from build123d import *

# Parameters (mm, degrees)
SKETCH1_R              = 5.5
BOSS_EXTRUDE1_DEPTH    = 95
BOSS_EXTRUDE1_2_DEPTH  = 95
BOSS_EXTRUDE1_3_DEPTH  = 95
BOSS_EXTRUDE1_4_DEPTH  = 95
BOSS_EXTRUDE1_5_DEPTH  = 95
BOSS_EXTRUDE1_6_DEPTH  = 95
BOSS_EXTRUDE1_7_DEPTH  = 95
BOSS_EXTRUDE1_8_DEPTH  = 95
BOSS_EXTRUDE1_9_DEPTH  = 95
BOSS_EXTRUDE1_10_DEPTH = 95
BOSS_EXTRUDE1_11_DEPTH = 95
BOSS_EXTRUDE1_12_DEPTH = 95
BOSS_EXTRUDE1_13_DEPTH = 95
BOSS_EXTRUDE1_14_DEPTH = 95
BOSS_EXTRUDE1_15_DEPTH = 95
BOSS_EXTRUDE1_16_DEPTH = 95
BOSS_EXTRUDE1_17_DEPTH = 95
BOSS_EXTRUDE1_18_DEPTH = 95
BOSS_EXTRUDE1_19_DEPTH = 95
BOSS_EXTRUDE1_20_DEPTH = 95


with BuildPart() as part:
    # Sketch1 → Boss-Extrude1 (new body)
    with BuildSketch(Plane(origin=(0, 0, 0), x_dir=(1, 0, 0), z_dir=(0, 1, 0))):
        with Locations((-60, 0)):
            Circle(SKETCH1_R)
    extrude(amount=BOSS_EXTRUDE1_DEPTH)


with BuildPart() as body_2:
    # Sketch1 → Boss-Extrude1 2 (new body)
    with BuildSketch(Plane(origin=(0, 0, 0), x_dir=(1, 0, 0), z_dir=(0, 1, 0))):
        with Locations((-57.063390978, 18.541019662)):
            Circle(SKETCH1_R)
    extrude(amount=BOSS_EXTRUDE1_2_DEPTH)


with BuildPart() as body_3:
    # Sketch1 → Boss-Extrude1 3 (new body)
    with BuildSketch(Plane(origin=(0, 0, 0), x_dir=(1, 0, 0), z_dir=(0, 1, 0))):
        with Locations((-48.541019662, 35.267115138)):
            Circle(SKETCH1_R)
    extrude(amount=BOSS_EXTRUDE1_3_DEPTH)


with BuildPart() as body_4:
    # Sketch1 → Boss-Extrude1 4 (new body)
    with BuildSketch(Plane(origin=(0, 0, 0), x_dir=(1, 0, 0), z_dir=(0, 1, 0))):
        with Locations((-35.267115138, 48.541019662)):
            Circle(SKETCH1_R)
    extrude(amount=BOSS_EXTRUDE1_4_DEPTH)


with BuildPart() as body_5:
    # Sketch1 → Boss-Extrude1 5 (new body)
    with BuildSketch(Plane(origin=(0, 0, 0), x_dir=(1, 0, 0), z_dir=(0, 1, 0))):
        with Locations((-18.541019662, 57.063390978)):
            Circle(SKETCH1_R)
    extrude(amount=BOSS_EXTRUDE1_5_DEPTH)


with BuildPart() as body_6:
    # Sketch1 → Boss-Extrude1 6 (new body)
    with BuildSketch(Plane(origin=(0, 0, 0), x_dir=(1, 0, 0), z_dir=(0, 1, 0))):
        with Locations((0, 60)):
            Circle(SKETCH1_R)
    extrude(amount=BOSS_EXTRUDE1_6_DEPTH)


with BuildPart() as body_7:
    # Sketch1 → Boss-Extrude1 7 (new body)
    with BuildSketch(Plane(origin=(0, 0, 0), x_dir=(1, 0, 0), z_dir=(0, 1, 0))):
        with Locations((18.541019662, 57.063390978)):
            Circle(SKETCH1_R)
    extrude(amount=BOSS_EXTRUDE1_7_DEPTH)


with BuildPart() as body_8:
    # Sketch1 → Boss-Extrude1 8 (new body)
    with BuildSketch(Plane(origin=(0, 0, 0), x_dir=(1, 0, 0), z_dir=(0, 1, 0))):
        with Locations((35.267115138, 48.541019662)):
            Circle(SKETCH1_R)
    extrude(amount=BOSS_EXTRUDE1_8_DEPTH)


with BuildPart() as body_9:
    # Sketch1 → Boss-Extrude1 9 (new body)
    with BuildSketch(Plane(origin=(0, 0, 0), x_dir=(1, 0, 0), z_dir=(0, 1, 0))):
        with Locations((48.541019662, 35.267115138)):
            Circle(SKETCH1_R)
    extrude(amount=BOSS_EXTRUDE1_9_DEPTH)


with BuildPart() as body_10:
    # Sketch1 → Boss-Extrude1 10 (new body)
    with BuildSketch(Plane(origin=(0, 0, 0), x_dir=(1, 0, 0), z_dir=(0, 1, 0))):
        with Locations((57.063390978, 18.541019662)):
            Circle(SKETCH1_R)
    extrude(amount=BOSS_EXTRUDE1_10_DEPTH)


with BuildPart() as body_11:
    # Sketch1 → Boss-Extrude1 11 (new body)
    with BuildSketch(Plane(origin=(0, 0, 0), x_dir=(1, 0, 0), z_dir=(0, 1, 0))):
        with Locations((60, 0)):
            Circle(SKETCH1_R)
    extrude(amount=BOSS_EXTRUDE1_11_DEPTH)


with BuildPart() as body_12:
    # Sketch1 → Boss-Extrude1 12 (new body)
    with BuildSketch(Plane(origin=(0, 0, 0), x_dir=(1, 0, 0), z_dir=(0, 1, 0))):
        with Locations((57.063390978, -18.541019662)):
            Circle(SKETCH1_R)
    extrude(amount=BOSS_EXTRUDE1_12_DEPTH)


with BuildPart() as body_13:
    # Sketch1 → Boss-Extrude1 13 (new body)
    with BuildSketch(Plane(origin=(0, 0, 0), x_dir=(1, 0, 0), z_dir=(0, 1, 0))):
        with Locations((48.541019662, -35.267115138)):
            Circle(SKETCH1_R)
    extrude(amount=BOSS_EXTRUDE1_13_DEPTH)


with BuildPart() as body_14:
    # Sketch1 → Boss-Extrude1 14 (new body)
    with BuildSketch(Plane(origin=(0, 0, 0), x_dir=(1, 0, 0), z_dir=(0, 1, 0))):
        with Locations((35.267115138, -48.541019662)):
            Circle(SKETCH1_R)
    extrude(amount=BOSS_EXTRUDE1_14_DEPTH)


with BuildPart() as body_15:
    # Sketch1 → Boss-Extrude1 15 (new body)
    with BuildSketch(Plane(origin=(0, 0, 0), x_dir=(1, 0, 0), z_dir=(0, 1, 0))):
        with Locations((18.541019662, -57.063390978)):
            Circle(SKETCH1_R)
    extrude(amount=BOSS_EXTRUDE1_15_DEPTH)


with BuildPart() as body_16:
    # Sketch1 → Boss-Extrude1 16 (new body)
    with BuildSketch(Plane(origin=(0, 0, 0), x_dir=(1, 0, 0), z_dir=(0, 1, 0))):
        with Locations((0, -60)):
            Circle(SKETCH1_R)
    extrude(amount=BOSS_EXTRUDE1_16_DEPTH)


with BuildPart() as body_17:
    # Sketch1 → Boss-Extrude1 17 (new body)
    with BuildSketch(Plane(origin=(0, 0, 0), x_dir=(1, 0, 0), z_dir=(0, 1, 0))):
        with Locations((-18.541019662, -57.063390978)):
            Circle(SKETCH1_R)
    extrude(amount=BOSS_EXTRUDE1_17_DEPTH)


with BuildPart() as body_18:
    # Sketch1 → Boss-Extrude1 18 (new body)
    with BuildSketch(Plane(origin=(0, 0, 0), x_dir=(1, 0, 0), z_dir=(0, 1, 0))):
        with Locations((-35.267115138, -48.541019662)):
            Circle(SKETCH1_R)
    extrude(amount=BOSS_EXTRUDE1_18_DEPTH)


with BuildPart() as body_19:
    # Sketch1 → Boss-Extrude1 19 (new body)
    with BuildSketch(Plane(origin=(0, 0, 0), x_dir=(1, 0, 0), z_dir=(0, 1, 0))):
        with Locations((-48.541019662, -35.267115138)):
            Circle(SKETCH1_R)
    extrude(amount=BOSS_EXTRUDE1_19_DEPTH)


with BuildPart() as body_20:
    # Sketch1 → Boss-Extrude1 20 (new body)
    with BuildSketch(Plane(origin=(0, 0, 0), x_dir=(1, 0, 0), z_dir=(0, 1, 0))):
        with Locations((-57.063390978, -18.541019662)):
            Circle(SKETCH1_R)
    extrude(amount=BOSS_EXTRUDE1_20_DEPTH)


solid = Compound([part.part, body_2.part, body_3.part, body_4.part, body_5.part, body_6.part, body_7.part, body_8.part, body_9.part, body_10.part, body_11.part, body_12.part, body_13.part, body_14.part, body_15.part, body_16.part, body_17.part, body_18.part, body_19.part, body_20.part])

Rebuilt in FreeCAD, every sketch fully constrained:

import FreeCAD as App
import Part
import Sketcher
from FreeCAD import Vector

doc = App.newDocument("Part")
body = doc.addObject("PartDesign::Body", "Body")

# Sketch on XZ plane
sketch1 = body.newObject("Sketcher::SketchObject", "Sketch")
sketch1.AttachmentSupport = (doc.getObject("XZ_Plane"), [""])
sketch1.MapMode = "FlatFace"
sketch1.addGeometry(Part.Circle(Vector(-60, 0, 0), Vector(0, 0, 1), 6), False)
sketch1.addConstraint(Sketcher.Constraint("PointOnObject", 0, 3, -1))
sketch1.addConstraint(Sketcher.Constraint("Diameter", 0, 11.0))
sketch1.addConstraint(Sketcher.Constraint("DistanceX", 0, 3, -1, 1, 60.0))
pad1 = body.newObject("PartDesign::Pad", "Pad")
pad1.Profile = sketch1
pad1.Length = 95
pad1.Reversed = True
body2 = doc.addObject("PartDesign::Body", "Body001")

# Sketch on XZ plane
sketch2 = body2.newObject("Sketcher::SketchObject", "Sketch001")
sketch2.AttachmentSupport = (doc.getObject("XZ_Plane001"), [""])
sketch2.MapMode = "FlatFace"
sketch2.addGeometry(Part.Circle(Vector(-57, -19, 0), Vector(0, 0, 1), 6), False)
sketch2.addConstraint(Sketcher.Constraint("Diameter", 0, 11.0))
sketch2.addConstraint(Sketcher.Constraint("DistanceX", 0, 3, -1, 1, 57.063391))
sketch2.addConstraint(Sketcher.Constraint("DistanceY", 0, 3, -1, 1, 18.54102))
pad2 = body2.newObject("PartDesign::Pad", "Pad001")
pad2.Profile = sketch2
pad2.Length = 95
pad2.Reversed = True
body3 = doc.addObject("PartDesign::Body", "Body002")

# Sketch on XZ plane
sketch3 = body3.newObject("Sketcher::SketchObject", "Sketch002")
sketch3.AttachmentSupport = (doc.getObject("XZ_Plane002"), [""])
sketch3.MapMode = "FlatFace"
sketch3.addGeometry(Part.Circle(Vector(-49, -35, 0), Vector(0, 0, 1), 6), False)
sketch3.addConstraint(Sketcher.Constraint("Diameter", 0, 11.0))
sketch3.addConstraint(Sketcher.Constraint("DistanceX", 0, 3, -1, 1, 48.54102))
sketch3.addConstraint(Sketcher.Constraint("DistanceY", 0, 3, -1, 1, 35.267115))
pad3 = body3.newObject("PartDesign::Pad", "Pad002")
pad3.Profile = sketch3
pad3.Length = 95
pad3.Reversed = True
body4 = doc.addObject("PartDesign::Body", "Body003")

# Sketch on XZ plane
sketch4 = body4.newObject("Sketcher::SketchObject", "Sketch003")
sketch4.AttachmentSupport = (doc.getObject("XZ_Plane003"), [""])
sketch4.MapMode = "FlatFace"
sketch4.addGeometry(Part.Circle(Vector(-35, -49, 0), Vector(0, 0, 1), 6), False)
sketch4.addConstraint(Sketcher.Constraint("Diameter", 0, 11.0))
sketch4.addConstraint(Sketcher.Constraint("DistanceY", 0, 3, -1, 1, 48.54102))
sketch4.addConstraint(Sketcher.Constraint("DistanceX", 0, 3, -1, 1, 35.267115))
pad4 = body4.newObject("PartDesign::Pad", "Pad003")
pad4.Profile = sketch4
pad4.Length = 95
pad4.Reversed = True
body5 = doc.addObject("PartDesign::Body", "Body004")

# Sketch on XZ plane
sketch5 = body5.newObject("Sketcher::SketchObject", "Sketch004")
sketch5.AttachmentSupport = (doc.getObject("XZ_Plane004"), [""])
sketch5.MapMode = "FlatFace"
sketch5.addGeometry(Part.Circle(Vector(-19, -57, 0), Vector(0, 0, 1), 6), False)
sketch5.addConstraint(Sketcher.Constraint("Diameter", 0, 11.0))
sketch5.addConstraint(Sketcher.Constraint("DistanceX", 0, 3, -1, 1, 18.54102))
sketch5.addConstraint(Sketcher.Constraint("DistanceY", 0, 3, -1, 1, 57.063391))
pad5 = body5.newObject("PartDesign::Pad", "Pad004")
pad5.Profile = sketch5
pad5.Length = 95
pad5.Reversed = True
body6 = doc.addObject("PartDesign::Body", "Body005")

# Sketch on XZ plane
sketch6 = body6.newObject("Sketcher::SketchObject", "Sketch005")
sketch6.AttachmentSupport = (doc.getObject("XZ_Plane005"), [""])
sketch6.MapMode = "FlatFace"
sketch6.addGeometry(Part.Circle(Vector(0, -60, 0), Vector(0, 0, 1), 6), False)
sketch6.addConstraint(Sketcher.Constraint("PointOnObject", 0, 3, -2))
sketch6.addConstraint(Sketcher.Constraint("Diameter", 0, 11.0))
sketch6.addConstraint(Sketcher.Constraint("DistanceY", 0, 3, -1, 1, 60.0))
pad6 = body6.newObject("PartDesign::Pad", "Pad005")
pad6.Profile = sketch6
pad6.Length = 95
pad6.Reversed = True
body7 = doc.addObject("PartDesign::Body", "Body006")

# Sketch on XZ plane
sketch7 = body7.newObject("Sketcher::SketchObject", "Sketch006")
sketch7.AttachmentSupport = (doc.getObject("XZ_Plane006"), [""])
sketch7.MapMode = "FlatFace"
sketch7.addGeometry(Part.Circle(Vector(19, -57, 0), Vector(0, 0, 1), 6), False)
sketch7.addConstraint(Sketcher.Constraint("Diameter", 0, 11.0))
sketch7.addConstraint(Sketcher.Constraint("DistanceX", -1, 1, 0, 3, 18.54102))
sketch7.addConstraint(Sketcher.Constraint("DistanceY", 0, 3, -1, 1, 57.063391))
pad7 = body7.newObject("PartDesign::Pad", "Pad006")
pad7.Profile = sketch7
pad7.Length = 95
pad7.Reversed = True
body8 = doc.addObject("PartDesign::Body", "Body007")

# Sketch on XZ plane
sketch8 = body8.newObject("Sketcher::SketchObject", "Sketch007")
sketch8.AttachmentSupport = (doc.getObject("XZ_Plane007"), [""])
sketch8.MapMode = "FlatFace"
sketch8.addGeometry(Part.Circle(Vector(35, -49, 0), Vector(0, 0, 1), 6), False)
sketch8.addConstraint(Sketcher.Constraint("Diameter", 0, 11.0))
sketch8.addConstraint(Sketcher.Constraint("DistanceY", 0, 3, -1, 1, 48.54102))
sketch8.addConstraint(Sketcher.Constraint("DistanceX", -1, 1, 0, 3, 35.267115))
pad8 = body8.newObject("PartDesign::Pad", "Pad007")
pad8.Profile = sketch8
pad8.Length = 95
pad8.Reversed = True
body9 = doc.addObject("PartDesign::Body", "Body008")

# Sketch on XZ plane
sketch9 = body9.newObject("Sketcher::SketchObject", "Sketch008")
sketch9.AttachmentSupport = (doc.getObject("XZ_Plane008"), [""])
sketch9.MapMode = "FlatFace"
sketch9.addGeometry(Part.Circle(Vector(49, -35, 0), Vector(0, 0, 1), 6), False)
sketch9.addConstraint(Sketcher.Constraint("Diameter", 0, 11.0))
sketch9.addConstraint(Sketcher.Constraint("DistanceX", -1, 1, 0, 3, 48.54102))
sketch9.addConstraint(Sketcher.Constraint("DistanceY", 0, 3, -1, 1, 35.267115))
pad9 = body9.newObject("PartDesign::Pad", "Pad008")
pad9.Profile = sketch9
pad9.Length = 95
pad9.Reversed = True
body10 = doc.addObject("PartDesign::Body", "Body009")

# Sketch on XZ plane
sketch10 = body10.newObject("Sketcher::SketchObject", "Sketch009")
sketch10.AttachmentSupport = (doc.getObject("XZ_Plane009"), [""])
sketch10.MapMode = "FlatFace"
sketch10.addGeometry(Part.Circle(Vector(57, -19, 0), Vector(0, 0, 1), 6), False)
sketch10.addConstraint(Sketcher.Constraint("Diameter", 0, 11.0))
sketch10.addConstraint(Sketcher.Constraint("DistanceX", -1, 1, 0, 3, 57.063391))
sketch10.addConstraint(Sketcher.Constraint("DistanceY", 0, 3, -1, 1, 18.54102))
pad10 = body10.newObject("PartDesign::Pad", "Pad009")
pad10.Profile = sketch10
pad10.Length = 95
pad10.Reversed = True
body11 = doc.addObject("PartDesign::Body", "Body010")

# Sketch on XZ plane
sketch11 = body11.newObject("Sketcher::SketchObject", "Sketch010")
sketch11.AttachmentSupport = (doc.getObject("XZ_Plane010"), [""])
sketch11.MapMode = "FlatFace"
sketch11.addGeometry(Part.Circle(Vector(60, 0, 0), Vector(0, 0, 1), 6), False)
sketch11.addConstraint(Sketcher.Constraint("PointOnObject", 0, 3, -1))
sketch11.addConstraint(Sketcher.Constraint("Diameter", 0, 11.0))
sketch11.addConstraint(Sketcher.Constraint("DistanceX", -1, 1, 0, 3, 60.0))
pad11 = body11.newObject("PartDesign::Pad", "Pad010")
pad11.Profile = sketch11
pad11.Length = 95
pad11.Reversed = True
body12 = doc.addObject("PartDesign::Body", "Body011")

# Sketch on XZ plane
sketch12 = body12.newObject("Sketcher::SketchObject", "Sketch011")
sketch12.AttachmentSupport = (doc.getObject("XZ_Plane011"), [""])
sketch12.MapMode = "FlatFace"
sketch12.addGeometry(Part.Circle(Vector(57, 19, 0), Vector(0, 0, 1), 6), False)
sketch12.addConstraint(Sketcher.Constraint("Diameter", 0, 11.0))
sketch12.addConstraint(Sketcher.Constraint("DistanceX", -1, 1, 0, 3, 57.063391))
sketch12.addConstraint(Sketcher.Constraint("DistanceY", -1, 1, 0, 3, 18.54102))
pad12 = body12.newObject("PartDesign::Pad", "Pad011")
pad12.Profile = sketch12
pad12.Length = 95
pad12.Reversed = True
body13 = doc.addObject("PartDesign::Body", "Body012")

# Sketch on XZ plane
sketch13 = body13.newObject("Sketcher::SketchObject", "Sketch012")
sketch13.AttachmentSupport = (doc.getObject("XZ_Plane012"), [""])
sketch13.MapMode = "FlatFace"
sketch13.addGeometry(Part.Circle(Vector(49, 35, 0), Vector(0, 0, 1), 6), False)
sketch13.addConstraint(Sketcher.Constraint("Diameter", 0, 11.0))
sketch13.addConstraint(Sketcher.Constraint("DistanceX", -1, 1, 0, 3, 48.54102))
sketch13.addConstraint(Sketcher.Constraint("DistanceY", -1, 1, 0, 3, 35.267115))
pad13 = body13.newObject("PartDesign::Pad", "Pad012")
pad13.Profile = sketch13
pad13.Length = 95
pad13.Reversed = True
body14 = doc.addObject("PartDesign::Body", "Body013")

# Sketch on XZ plane
sketch14 = body14.newObject("Sketcher::SketchObject", "Sketch013")
sketch14.AttachmentSupport = (doc.getObject("XZ_Plane013"), [""])
sketch14.MapMode = "FlatFace"
sketch14.addGeometry(Part.Circle(Vector(35, 49, 0), Vector(0, 0, 1), 6), False)
sketch14.addConstraint(Sketcher.Constraint("Diameter", 0, 11.0))
sketch14.addConstraint(Sketcher.Constraint("DistanceY", -1, 1, 0, 3, 48.54102))
sketch14.addConstraint(Sketcher.Constraint("DistanceX", -1, 1, 0, 3, 35.267115))
pad14 = body14.newObject("PartDesign::Pad", "Pad013")
pad14.Profile = sketch14
pad14.Length = 95
pad14.Reversed = True
body15 = doc.addObject("PartDesign::Body", "Body014")

# Sketch on XZ plane
sketch15 = body15.newObject("Sketcher::SketchObject", "Sketch014")
sketch15.AttachmentSupport = (doc.getObject("XZ_Plane014"), [""])
sketch15.MapMode = "FlatFace"
sketch15.addGeometry(Part.Circle(Vector(19, 57, 0), Vector(0, 0, 1), 6), False)
sketch15.addConstraint(Sketcher.Constraint("Diameter", 0, 11.0))
sketch15.addConstraint(Sketcher.Constraint("DistanceX", -1, 1, 0, 3, 18.54102))
sketch15.addConstraint(Sketcher.Constraint("DistanceY", -1, 1, 0, 3, 57.063391))
pad15 = body15.newObject("PartDesign::Pad", "Pad014")
pad15.Profile = sketch15
pad15.Length = 95
pad15.Reversed = True
body16 = doc.addObject("PartDesign::Body", "Body015")

# Sketch on XZ plane
sketch16 = body16.newObject("Sketcher::SketchObject", "Sketch015")
sketch16.AttachmentSupport = (doc.getObject("XZ_Plane015"), [""])
sketch16.MapMode = "FlatFace"
sketch16.addGeometry(Part.Circle(Vector(0, 60, 0), Vector(0, 0, 1), 6), False)
sketch16.addConstraint(Sketcher.Constraint("PointOnObject", 0, 3, -2))
sketch16.addConstraint(Sketcher.Constraint("Diameter", 0, 11.0))
sketch16.addConstraint(Sketcher.Constraint("DistanceY", -1, 1, 0, 3, 60.0))
pad16 = body16.newObject("PartDesign::Pad", "Pad015")
pad16.Profile = sketch16
pad16.Length = 95
pad16.Reversed = True
body17 = doc.addObject("PartDesign::Body", "Body016")

# Sketch on XZ plane
sketch17 = body17.newObject("Sketcher::SketchObject", "Sketch016")
sketch17.AttachmentSupport = (doc.getObject("XZ_Plane016"), [""])
sketch17.MapMode = "FlatFace"
sketch17.addGeometry(Part.Circle(Vector(-19, 57, 0), Vector(0, 0, 1), 6), False)
sketch17.addConstraint(Sketcher.Constraint("Diameter", 0, 11.0))
sketch17.addConstraint(Sketcher.Constraint("DistanceX", 0, 3, -1, 1, 18.54102))
sketch17.addConstraint(Sketcher.Constraint("DistanceY", -1, 1, 0, 3, 57.063391))
pad17 = body17.newObject("PartDesign::Pad", "Pad016")
pad17.Profile = sketch17
pad17.Length = 95
pad17.Reversed = True
body18 = doc.addObject("PartDesign::Body", "Body017")

# Sketch on XZ plane
sketch18 = body18.newObject("Sketcher::SketchObject", "Sketch017")
sketch18.AttachmentSupport = (doc.getObject("XZ_Plane017"), [""])
sketch18.MapMode = "FlatFace"
sketch18.addGeometry(Part.Circle(Vector(-35, 49, 0), Vector(0, 0, 1), 6), False)
sketch18.addConstraint(Sketcher.Constraint("Diameter", 0, 11.0))
sketch18.addConstraint(Sketcher.Constraint("DistanceY", -1, 1, 0, 3, 48.54102))
sketch18.addConstraint(Sketcher.Constraint("DistanceX", 0, 3, -1, 1, 35.267115))
pad18 = body18.newObject("PartDesign::Pad", "Pad017")
pad18.Profile = sketch18
pad18.Length = 95
pad18.Reversed = True
body19 = doc.addObject("PartDesign::Body", "Body018")

# Sketch on XZ plane
sketch19 = body19.newObject("Sketcher::SketchObject", "Sketch018")
sketch19.AttachmentSupport = (doc.getObject("XZ_Plane018"), [""])
sketch19.MapMode = "FlatFace"
sketch19.addGeometry(Part.Circle(Vector(-49, 35, 0), Vector(0, 0, 1), 6), False)
sketch19.addConstraint(Sketcher.Constraint("Diameter", 0, 11.0))
sketch19.addConstraint(Sketcher.Constraint("DistanceX", 0, 3, -1, 1, 48.54102))
sketch19.addConstraint(Sketcher.Constraint("DistanceY", -1, 1, 0, 3, 35.267115))
pad19 = body19.newObject("PartDesign::Pad", "Pad018")
pad19.Profile = sketch19
pad19.Length = 95
pad19.Reversed = True
body20 = doc.addObject("PartDesign::Body", "Body019")

# Sketch on XZ plane
sketch20 = body20.newObject("Sketcher::SketchObject", "Sketch019")
sketch20.AttachmentSupport = (doc.getObject("XZ_Plane019"), [""])
sketch20.MapMode = "FlatFace"
sketch20.addGeometry(Part.Circle(Vector(-57, 19, 0), Vector(0, 0, 1), 6), False)
sketch20.addConstraint(Sketcher.Constraint("Diameter", 0, 11.0))
sketch20.addConstraint(Sketcher.Constraint("DistanceX", 0, 3, -1, 1, 57.063391))
sketch20.addConstraint(Sketcher.Constraint("DistanceY", -1, 1, 0, 3, 18.54102))
pad20 = body20.newObject("PartDesign::Pad", "Pad019")
pad20.Profile = sketch20
pad20.Length = 95
pad20.Reversed = True

doc.recompute()
